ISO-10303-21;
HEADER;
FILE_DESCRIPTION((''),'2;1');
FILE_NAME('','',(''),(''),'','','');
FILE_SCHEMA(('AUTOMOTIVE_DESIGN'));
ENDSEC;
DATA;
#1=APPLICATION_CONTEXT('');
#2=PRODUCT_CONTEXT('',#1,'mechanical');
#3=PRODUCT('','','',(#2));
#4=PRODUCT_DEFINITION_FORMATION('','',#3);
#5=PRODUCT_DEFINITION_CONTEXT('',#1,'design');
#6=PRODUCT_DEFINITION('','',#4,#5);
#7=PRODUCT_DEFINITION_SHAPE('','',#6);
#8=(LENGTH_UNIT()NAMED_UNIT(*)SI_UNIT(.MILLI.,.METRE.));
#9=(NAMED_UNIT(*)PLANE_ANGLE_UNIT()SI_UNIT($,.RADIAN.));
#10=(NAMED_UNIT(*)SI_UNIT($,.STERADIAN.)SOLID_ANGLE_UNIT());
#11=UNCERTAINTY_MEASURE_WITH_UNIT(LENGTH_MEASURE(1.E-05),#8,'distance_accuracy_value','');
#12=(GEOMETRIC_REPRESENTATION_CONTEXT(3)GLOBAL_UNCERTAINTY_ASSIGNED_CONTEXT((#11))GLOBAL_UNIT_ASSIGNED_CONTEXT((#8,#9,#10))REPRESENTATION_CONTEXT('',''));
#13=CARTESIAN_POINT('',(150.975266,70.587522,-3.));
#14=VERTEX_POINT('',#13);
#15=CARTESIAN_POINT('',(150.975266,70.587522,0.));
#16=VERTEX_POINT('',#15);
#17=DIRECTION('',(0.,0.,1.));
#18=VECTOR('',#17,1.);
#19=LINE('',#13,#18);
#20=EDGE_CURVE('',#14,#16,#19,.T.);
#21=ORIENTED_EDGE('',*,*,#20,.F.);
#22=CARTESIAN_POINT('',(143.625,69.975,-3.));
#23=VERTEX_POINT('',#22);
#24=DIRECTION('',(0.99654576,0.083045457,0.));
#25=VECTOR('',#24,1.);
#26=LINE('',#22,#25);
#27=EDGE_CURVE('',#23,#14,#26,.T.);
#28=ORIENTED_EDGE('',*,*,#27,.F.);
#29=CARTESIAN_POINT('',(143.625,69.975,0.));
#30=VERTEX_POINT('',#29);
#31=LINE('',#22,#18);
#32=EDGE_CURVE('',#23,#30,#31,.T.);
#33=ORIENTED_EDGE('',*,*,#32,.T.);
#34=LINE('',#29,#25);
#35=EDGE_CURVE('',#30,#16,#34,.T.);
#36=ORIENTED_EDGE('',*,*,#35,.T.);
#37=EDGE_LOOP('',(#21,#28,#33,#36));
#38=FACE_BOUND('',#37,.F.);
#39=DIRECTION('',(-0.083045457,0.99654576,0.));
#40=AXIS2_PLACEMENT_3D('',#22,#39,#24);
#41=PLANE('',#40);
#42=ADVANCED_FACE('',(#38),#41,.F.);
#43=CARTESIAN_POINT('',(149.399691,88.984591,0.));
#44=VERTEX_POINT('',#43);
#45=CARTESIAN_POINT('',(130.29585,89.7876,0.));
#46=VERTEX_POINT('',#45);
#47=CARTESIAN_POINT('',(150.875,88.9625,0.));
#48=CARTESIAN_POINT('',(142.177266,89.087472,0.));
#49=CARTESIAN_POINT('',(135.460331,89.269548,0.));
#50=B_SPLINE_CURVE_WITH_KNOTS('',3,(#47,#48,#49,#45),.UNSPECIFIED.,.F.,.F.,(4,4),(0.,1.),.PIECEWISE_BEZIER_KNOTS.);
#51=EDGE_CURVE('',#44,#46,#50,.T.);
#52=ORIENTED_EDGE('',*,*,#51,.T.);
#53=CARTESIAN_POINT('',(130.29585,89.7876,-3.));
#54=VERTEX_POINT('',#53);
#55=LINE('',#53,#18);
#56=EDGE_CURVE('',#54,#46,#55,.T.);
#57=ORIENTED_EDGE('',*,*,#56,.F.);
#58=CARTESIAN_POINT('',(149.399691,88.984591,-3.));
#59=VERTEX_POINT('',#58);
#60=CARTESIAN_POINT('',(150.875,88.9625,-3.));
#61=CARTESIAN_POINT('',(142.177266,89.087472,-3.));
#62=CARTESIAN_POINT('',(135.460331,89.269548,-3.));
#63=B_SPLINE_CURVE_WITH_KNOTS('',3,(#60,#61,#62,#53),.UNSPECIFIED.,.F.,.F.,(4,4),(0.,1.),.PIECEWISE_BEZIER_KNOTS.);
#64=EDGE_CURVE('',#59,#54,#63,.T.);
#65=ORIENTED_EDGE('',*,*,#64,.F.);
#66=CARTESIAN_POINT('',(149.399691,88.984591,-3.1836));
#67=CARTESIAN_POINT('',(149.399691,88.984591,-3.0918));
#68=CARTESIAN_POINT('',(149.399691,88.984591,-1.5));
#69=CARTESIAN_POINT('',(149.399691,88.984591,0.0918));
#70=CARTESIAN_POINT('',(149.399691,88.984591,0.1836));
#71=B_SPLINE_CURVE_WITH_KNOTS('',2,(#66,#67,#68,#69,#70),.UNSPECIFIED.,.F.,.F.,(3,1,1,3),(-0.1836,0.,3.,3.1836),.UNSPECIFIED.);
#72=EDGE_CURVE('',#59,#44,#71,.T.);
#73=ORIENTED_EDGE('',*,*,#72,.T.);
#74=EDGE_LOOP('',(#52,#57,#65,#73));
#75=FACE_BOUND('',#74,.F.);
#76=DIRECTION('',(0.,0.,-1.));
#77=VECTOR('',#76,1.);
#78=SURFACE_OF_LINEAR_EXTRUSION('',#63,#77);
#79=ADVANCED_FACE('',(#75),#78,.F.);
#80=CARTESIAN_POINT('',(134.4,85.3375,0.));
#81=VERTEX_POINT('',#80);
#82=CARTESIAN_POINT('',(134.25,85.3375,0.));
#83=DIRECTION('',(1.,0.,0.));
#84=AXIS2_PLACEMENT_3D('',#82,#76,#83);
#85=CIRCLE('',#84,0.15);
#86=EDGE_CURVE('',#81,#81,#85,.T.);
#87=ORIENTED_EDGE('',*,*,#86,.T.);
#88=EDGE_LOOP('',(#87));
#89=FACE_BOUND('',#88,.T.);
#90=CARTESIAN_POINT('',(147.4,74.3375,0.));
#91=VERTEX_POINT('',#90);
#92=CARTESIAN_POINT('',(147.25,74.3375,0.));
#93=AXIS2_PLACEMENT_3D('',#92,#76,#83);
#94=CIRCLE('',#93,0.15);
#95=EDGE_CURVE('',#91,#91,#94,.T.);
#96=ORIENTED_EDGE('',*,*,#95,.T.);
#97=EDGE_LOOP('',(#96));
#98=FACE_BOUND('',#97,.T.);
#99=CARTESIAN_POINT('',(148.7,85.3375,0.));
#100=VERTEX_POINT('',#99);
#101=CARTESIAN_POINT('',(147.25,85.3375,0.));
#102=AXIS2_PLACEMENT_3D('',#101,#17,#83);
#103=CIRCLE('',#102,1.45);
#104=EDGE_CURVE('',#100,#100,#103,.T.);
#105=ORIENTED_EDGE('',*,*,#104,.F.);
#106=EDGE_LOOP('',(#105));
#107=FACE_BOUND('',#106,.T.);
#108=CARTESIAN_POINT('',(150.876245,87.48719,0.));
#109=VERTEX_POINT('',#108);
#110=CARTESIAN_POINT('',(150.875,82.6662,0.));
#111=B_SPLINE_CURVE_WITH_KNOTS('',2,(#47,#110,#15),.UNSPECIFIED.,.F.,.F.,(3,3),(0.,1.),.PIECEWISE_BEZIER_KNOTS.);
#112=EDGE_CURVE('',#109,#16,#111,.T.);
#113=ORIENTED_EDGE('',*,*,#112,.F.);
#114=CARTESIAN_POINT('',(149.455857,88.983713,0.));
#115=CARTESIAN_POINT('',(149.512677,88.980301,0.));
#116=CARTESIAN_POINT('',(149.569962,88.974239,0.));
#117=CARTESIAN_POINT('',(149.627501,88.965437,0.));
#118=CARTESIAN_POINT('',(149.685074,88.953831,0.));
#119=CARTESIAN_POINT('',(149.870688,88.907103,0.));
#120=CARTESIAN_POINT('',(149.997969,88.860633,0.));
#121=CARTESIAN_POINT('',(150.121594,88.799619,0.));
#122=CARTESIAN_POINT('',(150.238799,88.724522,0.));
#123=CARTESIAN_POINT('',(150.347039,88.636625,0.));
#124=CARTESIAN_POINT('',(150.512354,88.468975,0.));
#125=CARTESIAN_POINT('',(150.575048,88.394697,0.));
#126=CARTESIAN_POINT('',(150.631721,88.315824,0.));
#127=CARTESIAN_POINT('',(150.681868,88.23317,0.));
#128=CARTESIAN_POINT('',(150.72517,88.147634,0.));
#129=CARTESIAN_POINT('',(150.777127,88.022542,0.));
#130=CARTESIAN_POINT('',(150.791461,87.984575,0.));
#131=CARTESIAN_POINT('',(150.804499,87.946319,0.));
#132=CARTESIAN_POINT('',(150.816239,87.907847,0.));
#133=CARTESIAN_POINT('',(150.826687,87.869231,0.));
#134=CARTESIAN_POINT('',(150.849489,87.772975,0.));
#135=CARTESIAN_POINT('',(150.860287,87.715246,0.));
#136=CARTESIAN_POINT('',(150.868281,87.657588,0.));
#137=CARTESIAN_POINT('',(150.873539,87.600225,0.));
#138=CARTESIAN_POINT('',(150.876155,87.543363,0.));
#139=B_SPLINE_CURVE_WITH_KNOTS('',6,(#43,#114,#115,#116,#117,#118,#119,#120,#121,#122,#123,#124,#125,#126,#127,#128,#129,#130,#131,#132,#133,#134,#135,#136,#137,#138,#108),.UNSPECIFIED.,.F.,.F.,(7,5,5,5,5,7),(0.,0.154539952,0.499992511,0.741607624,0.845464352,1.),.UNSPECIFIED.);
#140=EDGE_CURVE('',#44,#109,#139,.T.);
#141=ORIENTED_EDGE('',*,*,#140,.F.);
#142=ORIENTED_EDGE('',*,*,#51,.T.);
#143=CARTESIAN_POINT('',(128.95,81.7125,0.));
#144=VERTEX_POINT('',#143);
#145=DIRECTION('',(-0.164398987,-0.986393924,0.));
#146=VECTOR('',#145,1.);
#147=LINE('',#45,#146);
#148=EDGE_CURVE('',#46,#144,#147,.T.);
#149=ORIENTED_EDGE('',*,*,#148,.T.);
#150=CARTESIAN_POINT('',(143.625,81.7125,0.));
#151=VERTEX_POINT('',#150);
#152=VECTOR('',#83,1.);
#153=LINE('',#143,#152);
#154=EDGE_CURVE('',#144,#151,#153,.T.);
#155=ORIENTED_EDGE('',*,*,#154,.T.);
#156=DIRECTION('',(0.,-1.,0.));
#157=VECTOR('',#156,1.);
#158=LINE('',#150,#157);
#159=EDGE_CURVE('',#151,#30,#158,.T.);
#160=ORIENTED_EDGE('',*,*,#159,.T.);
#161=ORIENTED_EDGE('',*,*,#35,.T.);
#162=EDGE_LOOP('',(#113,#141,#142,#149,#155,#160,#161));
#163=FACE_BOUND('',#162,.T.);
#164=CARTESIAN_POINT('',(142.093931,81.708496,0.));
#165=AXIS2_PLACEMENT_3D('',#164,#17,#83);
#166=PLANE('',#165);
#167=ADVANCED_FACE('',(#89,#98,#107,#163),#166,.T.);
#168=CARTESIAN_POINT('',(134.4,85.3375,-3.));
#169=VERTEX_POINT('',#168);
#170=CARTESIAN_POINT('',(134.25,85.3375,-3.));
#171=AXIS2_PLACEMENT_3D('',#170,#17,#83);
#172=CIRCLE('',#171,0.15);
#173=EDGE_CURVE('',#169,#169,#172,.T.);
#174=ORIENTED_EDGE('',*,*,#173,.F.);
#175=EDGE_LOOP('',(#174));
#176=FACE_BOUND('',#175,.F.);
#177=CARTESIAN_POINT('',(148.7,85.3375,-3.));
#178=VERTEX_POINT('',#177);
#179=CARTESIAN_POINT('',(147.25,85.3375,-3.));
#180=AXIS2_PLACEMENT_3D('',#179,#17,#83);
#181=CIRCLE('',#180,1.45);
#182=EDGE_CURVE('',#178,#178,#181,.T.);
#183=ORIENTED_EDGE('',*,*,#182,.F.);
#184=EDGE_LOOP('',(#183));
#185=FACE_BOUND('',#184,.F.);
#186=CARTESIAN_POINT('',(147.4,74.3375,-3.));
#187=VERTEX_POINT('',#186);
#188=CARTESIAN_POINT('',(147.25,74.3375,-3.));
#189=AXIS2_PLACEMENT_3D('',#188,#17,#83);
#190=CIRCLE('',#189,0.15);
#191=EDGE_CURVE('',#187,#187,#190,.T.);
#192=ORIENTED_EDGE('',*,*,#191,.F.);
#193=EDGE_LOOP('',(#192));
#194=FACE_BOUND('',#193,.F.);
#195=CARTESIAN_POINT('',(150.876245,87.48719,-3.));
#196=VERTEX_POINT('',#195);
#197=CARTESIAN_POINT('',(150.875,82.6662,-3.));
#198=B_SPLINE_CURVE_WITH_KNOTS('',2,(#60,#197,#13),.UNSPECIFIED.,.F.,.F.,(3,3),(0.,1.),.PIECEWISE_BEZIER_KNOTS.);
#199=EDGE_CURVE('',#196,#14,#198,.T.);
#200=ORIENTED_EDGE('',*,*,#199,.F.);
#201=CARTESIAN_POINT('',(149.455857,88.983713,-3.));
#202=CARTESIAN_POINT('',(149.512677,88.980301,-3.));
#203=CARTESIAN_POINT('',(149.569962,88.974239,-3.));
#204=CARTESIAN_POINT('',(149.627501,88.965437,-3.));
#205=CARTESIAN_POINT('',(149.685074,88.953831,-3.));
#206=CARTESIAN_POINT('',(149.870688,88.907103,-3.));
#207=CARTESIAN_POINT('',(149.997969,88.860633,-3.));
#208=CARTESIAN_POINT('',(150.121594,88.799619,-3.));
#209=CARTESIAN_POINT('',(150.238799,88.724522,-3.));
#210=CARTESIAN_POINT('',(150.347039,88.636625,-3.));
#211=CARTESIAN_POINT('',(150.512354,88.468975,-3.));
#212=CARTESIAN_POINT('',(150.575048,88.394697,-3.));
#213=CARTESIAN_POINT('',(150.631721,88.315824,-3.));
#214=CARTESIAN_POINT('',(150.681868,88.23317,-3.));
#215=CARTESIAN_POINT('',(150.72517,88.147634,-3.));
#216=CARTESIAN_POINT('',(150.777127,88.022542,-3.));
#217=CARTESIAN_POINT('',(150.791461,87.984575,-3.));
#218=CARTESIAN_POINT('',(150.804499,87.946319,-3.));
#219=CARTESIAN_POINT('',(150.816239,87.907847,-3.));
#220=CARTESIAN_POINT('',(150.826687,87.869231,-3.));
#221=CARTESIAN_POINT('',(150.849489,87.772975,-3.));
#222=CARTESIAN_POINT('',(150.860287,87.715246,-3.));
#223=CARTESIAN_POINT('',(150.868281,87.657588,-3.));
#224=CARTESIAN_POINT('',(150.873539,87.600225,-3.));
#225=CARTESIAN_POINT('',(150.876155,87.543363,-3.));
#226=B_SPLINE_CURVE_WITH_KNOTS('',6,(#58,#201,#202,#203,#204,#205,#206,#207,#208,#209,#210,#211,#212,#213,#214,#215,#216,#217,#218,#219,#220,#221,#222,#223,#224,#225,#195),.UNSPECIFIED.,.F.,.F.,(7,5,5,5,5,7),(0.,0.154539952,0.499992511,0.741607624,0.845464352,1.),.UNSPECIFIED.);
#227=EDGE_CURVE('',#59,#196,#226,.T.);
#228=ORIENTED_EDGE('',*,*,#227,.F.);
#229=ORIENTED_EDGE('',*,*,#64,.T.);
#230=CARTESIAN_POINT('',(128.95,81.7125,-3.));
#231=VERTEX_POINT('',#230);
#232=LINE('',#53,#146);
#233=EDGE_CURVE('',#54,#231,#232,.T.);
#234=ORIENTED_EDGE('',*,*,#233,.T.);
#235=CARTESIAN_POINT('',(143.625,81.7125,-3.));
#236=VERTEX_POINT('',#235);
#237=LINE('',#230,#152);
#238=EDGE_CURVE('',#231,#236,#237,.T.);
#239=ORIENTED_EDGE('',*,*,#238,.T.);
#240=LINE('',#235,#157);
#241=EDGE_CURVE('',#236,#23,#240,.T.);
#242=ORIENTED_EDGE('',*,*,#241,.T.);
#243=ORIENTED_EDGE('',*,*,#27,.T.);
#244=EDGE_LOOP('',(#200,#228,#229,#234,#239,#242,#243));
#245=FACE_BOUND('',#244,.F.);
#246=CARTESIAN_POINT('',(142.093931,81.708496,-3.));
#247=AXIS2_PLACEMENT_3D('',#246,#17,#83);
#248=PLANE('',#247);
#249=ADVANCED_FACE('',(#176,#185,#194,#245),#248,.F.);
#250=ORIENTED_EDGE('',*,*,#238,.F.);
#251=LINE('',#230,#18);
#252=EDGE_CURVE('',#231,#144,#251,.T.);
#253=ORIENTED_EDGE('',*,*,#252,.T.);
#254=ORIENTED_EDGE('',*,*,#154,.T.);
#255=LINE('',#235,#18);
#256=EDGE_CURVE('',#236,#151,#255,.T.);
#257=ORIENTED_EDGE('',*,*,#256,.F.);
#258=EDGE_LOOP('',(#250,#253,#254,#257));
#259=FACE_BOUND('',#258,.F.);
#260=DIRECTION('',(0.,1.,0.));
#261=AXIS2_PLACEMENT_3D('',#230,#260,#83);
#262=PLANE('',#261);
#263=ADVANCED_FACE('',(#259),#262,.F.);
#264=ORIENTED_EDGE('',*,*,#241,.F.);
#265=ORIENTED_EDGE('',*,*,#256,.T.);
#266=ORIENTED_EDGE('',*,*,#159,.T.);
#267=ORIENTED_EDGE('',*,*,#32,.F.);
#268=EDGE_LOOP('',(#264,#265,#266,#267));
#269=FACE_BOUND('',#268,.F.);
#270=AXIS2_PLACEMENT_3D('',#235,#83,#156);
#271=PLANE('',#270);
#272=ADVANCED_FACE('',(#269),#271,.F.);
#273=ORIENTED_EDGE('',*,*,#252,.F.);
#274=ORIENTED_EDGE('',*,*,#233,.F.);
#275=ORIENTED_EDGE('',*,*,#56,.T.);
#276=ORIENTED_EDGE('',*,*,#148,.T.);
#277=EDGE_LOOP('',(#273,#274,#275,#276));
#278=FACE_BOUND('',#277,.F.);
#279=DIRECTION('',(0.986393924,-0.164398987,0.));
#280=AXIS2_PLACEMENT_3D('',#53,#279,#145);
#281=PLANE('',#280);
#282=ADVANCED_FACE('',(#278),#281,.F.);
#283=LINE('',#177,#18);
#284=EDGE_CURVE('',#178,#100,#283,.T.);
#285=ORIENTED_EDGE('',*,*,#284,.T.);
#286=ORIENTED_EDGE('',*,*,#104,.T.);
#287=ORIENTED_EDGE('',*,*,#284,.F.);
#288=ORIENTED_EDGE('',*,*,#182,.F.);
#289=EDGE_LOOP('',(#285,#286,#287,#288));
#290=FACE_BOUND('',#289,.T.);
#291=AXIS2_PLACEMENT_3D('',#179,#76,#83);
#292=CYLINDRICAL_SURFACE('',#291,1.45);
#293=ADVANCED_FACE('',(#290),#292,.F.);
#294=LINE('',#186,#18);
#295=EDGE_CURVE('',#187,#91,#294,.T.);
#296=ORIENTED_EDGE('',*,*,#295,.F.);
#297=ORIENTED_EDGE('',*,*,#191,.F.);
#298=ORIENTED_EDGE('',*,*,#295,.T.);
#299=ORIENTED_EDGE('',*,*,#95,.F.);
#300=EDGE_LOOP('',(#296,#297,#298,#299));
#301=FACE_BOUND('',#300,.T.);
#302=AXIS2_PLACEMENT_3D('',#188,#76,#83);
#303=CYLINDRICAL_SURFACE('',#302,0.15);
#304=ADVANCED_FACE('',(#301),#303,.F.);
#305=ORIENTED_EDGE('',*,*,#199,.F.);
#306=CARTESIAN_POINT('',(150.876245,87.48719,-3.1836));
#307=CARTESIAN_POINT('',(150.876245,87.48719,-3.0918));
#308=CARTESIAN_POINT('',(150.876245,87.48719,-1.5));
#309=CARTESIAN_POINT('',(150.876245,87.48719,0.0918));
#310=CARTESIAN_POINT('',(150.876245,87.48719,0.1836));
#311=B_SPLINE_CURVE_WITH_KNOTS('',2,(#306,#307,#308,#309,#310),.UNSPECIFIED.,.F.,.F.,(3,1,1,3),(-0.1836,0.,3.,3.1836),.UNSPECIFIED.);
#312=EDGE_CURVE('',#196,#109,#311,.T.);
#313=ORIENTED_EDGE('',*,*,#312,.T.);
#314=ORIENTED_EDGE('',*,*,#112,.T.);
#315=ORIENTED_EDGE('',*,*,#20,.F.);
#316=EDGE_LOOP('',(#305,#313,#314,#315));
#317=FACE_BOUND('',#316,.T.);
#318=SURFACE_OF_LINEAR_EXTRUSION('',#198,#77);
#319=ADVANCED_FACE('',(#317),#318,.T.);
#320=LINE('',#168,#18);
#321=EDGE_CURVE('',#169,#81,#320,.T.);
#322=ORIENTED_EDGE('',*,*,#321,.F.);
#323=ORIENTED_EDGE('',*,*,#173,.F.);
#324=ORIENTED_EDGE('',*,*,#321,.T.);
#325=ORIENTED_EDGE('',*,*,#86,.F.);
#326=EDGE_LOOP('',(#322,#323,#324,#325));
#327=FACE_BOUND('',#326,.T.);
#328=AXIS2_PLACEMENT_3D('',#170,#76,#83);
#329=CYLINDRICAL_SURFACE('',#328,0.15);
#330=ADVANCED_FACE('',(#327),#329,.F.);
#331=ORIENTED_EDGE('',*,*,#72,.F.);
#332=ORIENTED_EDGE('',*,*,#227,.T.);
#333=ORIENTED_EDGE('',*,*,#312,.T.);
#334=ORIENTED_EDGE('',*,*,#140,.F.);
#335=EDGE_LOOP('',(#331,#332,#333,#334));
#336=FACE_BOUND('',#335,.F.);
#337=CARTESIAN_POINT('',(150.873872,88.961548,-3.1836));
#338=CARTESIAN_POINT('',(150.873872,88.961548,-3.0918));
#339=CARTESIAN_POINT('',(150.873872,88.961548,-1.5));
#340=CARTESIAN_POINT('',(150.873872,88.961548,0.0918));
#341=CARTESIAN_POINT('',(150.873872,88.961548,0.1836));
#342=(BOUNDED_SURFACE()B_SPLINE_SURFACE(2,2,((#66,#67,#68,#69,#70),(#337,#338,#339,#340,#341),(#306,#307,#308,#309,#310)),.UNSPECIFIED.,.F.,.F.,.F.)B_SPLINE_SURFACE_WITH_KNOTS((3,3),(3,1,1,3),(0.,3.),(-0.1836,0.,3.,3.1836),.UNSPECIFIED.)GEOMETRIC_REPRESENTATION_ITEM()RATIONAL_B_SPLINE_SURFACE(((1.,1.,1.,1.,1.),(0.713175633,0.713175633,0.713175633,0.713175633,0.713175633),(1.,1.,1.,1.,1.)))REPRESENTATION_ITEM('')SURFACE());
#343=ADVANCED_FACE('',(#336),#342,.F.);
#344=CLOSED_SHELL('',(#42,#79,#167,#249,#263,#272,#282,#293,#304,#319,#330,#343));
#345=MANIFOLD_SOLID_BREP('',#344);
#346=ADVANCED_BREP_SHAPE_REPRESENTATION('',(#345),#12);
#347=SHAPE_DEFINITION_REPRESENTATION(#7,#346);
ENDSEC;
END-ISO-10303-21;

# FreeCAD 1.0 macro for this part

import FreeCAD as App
import Part
import Sketcher
from FreeCAD import Vector


def edges_at(feature, points):
    """Names of the edges that pass closest to the given points."""
    edges = feature.Shape.Edges
    near = lambda p: min(range(len(edges)), key=lambda i: edges[i].distToShape(Part.Vertex(*p))[0])
    return sorted({f"Edge{near(p) + 1}" for p in points})

doc = App.newDocument("Part")
body = doc.addObject("PartDesign::Body", "Body")

# Sketch on XY plane
sketch1 = doc.addObject("Sketcher::SketchObject", "Sketch")
body.addObject(sketch1)
sketch1.AttachmentSupport = (doc.XY_Plane, [""])
sketch1.MapMode = "FlatFace"
sketch1.addGeometry(Part.BSplineCurve([Vector(150.875, 88.9625, 0), Vector(142.177266, 89.087472, 0), Vector(135.460331, 89.269548, 0), Vector(130.29585, 89.7876, 0)], [4, 4], [0, 1], False, 3, [1, 1, 1, 1], False), False)
sketch1.addGeometry(Part.LineSegment(Vector(130.29585, 89.7876, 0), Vector(128.95, 81.7125, 0)), False)
sketch1.addGeometry(Part.LineSegment(Vector(128.95, 81.7125, 0), Vector(143.625, 81.7125, 0)), False)
sketch1.addGeometry(Part.LineSegment(Vector(143.625, 81.7125, 0), Vector(143.625, 69.975, 0)), False)
sketch1.addGeometry(Part.LineSegment(Vector(143.625, 69.975, 0), Vector(150.975266, 70.587522, 0)), False)
sketch1.addGeometry(Part.BSplineCurve([Vector(150.875, 88.9625, 0), Vector(150.875, 82.6662, 0), Vector(150.975266, 70.587522, 0)], [3, 3], [0, 1], False, 2, [1, 1, 1], False), False)
sketch1.addGeometry(Part.Circle(Vector(147.25, 85.3375, 0), Vector(0, 0, 1), 1.45), False)
sketch1.addConstraint(Sketcher.Constraint("Block", 0))
sketch1.addConstraint(Sketcher.Constraint("Block", 5))
sketch1.addConstraint(Sketcher.Constraint("Coincident", 0, 2, 1, 1))
sketch1.addConstraint(Sketcher.Constraint("Coincident", 1, 2, 2, 1))
sketch1.addConstraint(Sketcher.Constraint("Coincident", 2, 2, 3, 1))
sketch1.addConstraint(Sketcher.Constraint("Coincident", 3, 2, 4, 1))
sketch1.addConstraint(Sketcher.Constraint("Coincident", 4, 2, 5, 2))
sketch1.addConstraint(Sketcher.Constraint("Horizontal", 2))
sketch1.addConstraint(Sketcher.Constraint("Vertical", 3))
sketch1.addConstraint(Sketcher.Constraint("Diameter", 6, 2.9))
sketch1.addConstraint(Sketcher.Constraint("DistanceX", 1, 2, 6, 3, 18.3))
sketch1.addConstraint(Sketcher.Constraint("DistanceX", 2, 1, 2, 2, 14.675))
sketch1.addConstraint(Sketcher.Constraint("DistanceX", -1, 1, 6, 3, 147.25))
sketch1.addConstraint(Sketcher.Constraint("DistanceY", 3, 2, 3, 1, 11.7375))
sketch1.addConstraint(Sketcher.Constraint("DistanceY", -1, 1, 3, 2, 69.975))
sketch1.addConstraint(Sketcher.Constraint("DistanceY", 1, 2, 6, 3, 3.625))
pad1 = doc.addObject("PartDesign::Pad", "Pad")
body.addObject(pad1)
pad1.Profile = sketch1
pad1.Length = 3

# Sketch on XY plane
sketch2 = doc.addObject("Sketcher::SketchObject", "Sketch001")
body.addObject(sketch2)
sketch2.AttachmentSupport = (doc.XY_Plane, [""])
sketch2.MapMode = "FlatFace"
sketch2.addGeometry(Part.Circle(Vector(134.25, 85.34, 0), Vector(0, 0, 1), 0.15), False)
sketch2.addGeometry(Part.Circle(Vector(147.25, 74.34, 0), Vector(0, 0, 1), 0.15), False)
sketch2.addConstraint(Sketcher.Constraint("Equal", 0, 1))
sketch2.addConstraint(Sketcher.Constraint("Diameter", 0, 0.3))
sketch2.addConstraint(Sketcher.Constraint("DistanceX", 0, 3, 1, 3, 13.0))
sketch2.addConstraint(Sketcher.Constraint("DistanceY", 1, 3, 0, 3, 11.0))
sketch2.addConstraint(Sketcher.Constraint("DistanceX", -1, 1, 0, 3, 134.25))
sketch2.addConstraint(Sketcher.Constraint("DistanceY", -1, 1, 0, 3, 85.3375))
pocket1 = doc.addObject("PartDesign::Pocket", "Pocket")
body.addObject(pocket1)
pocket1.Profile = sketch2
pocket1.Length = 20
pocket1.Reversed = True
doc.recompute()

fillet = doc.addObject("PartDesign::Fillet", "Fillet")
body.addObject(fillet)
fillet.Base = (pocket1, edges_at(pocket1, [(150.875, 88.963, 1.5)]))
fillet.Radius = 1.5
body2 = doc.addObject("PartDesign::Body", "Body001")
doc.recompute()

body.Placement = App.Placement(Vector(0, 0, -3), App.Rotation(Vector(0, 0, 1), 0))
boolean = doc.addObject("PartDesign::Boolean", "Boolean")
body2.addObject(boolean)
boolean.Type = "Fuse"
boolean.addObjects([body])

doc.recompute()
